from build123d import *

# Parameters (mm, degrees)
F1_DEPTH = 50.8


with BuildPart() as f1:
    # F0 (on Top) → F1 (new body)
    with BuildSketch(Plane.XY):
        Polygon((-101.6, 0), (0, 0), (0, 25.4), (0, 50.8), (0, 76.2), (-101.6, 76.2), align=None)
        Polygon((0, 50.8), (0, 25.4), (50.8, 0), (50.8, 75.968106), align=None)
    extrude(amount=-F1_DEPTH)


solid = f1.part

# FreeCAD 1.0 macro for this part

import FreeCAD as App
import Part
import Sketcher

V = App.Vector
Q = App.Units.Quantity

doc = App.newDocument("Part")
body = doc.addObject("PartDesign::Body", "Body")

# Sketch on XY plane
sketch1 = doc.addObject("Sketcher::SketchObject", "Sketch")
body.addObject(sketch1)
sketch1.AttachmentSupport = (doc.XY_Plane, [""])
sketch1.MapMode = "FlatFace"
sketch1.addGeometry([
    Part.LineSegment(V(-101.6, 0, 0), V(0, 0, 0)),  # 0
    Part.LineSegment(V(0, 0, 0), V(0, 25.4, 0)),  # 1
    Part.LineSegment(V(0, 25.4, 0), V(50.8, 0, 0)),  # 2
    Part.LineSegment(V(50.8, 0, 0), V(50.8, 75.968106, 0)),  # 3
    Part.LineSegment(V(50.8, 75.968106, 0), V(0, 50.8, 0)),  # 4
    Part.LineSegment(V(0, 50.8, 0), V(0, 76.2, 0)),  # 5
    Part.LineSegment(V(0, 76.2, 0), V(-101.6, 76.2, 0)),  # 6
    Part.LineSegment(V(-101.6, 76.2, 0), V(-101.6, 0, 0)),  # 7
], False)
sketch1.addConstraint([
    Sketcher.Constraint("Coincident", 0, 2, 1, 1),
    Sketcher.Constraint("Coincident", 1, 2, 2, 1),
    Sketcher.Constraint("Coincident", 2, 2, 3, 1),
    Sketcher.Constraint("Coincident", 3, 2, 4, 1),
    Sketcher.Constraint("Coincident", 4, 2, 5, 1),
    Sketcher.Constraint("Coincident", 5, 2, 6, 1),
    Sketcher.Constraint("Coincident", 6, 2, 7, 1),
    Sketcher.Constraint("Coincident", 7, 2, 0, 1),
    Sketcher.Constraint("Horizontal", 0),
    Sketcher.Constraint("Vertical", 1),
    Sketcher.Constraint("Vertical", 3),
    Sketcher.Constraint("Vertical", 5),
    Sketcher.Constraint("Horizontal", 6),
    Sketcher.Constraint("Vertical", 7),
    Sketcher.Constraint("Coincident", 0, 2, -1, 1),
    Sketcher.Constraint("PointOnObject", 2, 2, -1),
    Sketcher.Constraint("PointOnObject", 4, 2, -2),
    Sketcher.Constraint("Equal", 1, 5),
    Sketcher.Constraint("DistanceX", 0, 1, 0, 2, Q("4 in")),
    Sketcher.Constraint("DistanceY", 1, 1, 1, 2, Q("1 in")),
    Sketcher.Constraint("DistanceY", 7, 2, 7, 1, Q("3 in")),
    Sketcher.Constraint("DistanceX", -1, 1, 2, 2, Q("2 in")),
    Sketcher.Constraint("Distance", 4, Q("2.232 in")),
])
pad1 = doc.addObject("PartDesign::Pad", "Pad")
body.addObject(pad1)
pad1.Profile = sketch1
pad1.Length = Q("2 in")
pad1.Reversed = True

doc.recompute()
